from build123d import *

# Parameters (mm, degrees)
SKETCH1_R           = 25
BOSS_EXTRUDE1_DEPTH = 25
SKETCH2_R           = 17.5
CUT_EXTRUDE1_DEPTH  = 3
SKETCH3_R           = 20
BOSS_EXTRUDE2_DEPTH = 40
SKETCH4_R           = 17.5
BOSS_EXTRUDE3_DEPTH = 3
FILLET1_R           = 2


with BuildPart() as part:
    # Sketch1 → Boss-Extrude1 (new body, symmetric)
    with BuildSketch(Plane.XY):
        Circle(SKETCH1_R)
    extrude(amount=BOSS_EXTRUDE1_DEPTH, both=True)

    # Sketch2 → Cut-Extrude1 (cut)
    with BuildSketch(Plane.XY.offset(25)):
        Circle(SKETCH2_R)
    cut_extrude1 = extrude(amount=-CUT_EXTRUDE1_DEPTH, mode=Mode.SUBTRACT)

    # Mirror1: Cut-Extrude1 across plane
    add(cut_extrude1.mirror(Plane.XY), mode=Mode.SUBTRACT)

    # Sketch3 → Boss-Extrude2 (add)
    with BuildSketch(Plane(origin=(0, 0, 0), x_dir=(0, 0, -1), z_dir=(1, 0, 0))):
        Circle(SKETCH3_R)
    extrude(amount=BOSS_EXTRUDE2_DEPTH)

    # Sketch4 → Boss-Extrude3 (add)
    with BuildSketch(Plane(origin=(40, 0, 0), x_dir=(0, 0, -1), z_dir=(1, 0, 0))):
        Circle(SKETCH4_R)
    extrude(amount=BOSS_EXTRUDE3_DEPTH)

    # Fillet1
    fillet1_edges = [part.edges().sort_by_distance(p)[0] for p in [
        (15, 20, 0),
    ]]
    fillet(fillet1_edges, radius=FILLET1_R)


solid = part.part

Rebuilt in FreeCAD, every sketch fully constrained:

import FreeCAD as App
import Part
import Sketcher
from FreeCAD import Vector
Q = App.Units.Quantity


def edges_at(feature, points):
    """Names of the edges that pass closest to the given points."""
    edges = feature.Shape.Edges
    near = lambda p: min(range(len(edges)), key=lambda i: edges[i].distToShape(Part.Vertex(*p))[0])
    return sorted({f"Edge{near(p) + 1}" for p in points})

doc = App.newDocument("Part")
body = doc.addObject("PartDesign::Body", "Body")

sketch1 = body.newObject("Sketcher::SketchObject", "Sketch")
sketch1.AttachmentSupport = (doc.getObject("XY_Plane"), [""])
sketch1.MapMode = "FlatFace"
sketch1.addGeometry(Part.Circle(Vector(0, 0, 0), Vector(0, 0, 1), 25), False)
sketch1.addConstraint(Sketcher.Constraint("Coincident", 0, 3, -1, 1))
sketch1.addConstraint(Sketcher.Constraint("Diameter", 0, Q("50 mm")))
pad1 = body.newObject("PartDesign::Pad", "Pad")
pad1.Profile = sketch1
pad1.Length = 50
pad1.Midplane = True

sketch2 = body.newObject("Sketcher::SketchObject", "Sketch001")
sketch2.AttachmentSupport = (doc.getObject("XY_Plane"), [""])
sketch2.MapMode = "FlatFace"
sketch2.AttachmentOffset = App.Placement(Vector(0, 0, 25), App.Rotation())
sketch2.addGeometry(Part.Circle(Vector(0, 0, 0), Vector(0, 0, 1), 17.5), False)
sketch2.addConstraint(Sketcher.Constraint("Coincident", 0, 3, -1, 1))
sketch2.addConstraint(Sketcher.Constraint("Diameter", 0, Q("35 mm")))
pocket1 = body.newObject("PartDesign::Pocket", "Pocket")
pocket1.Profile = sketch2
pocket1.Length = 3
doc.recompute()

mirrored = body.newObject("PartDesign::Mirrored", "Mirrored")
mirrored.Originals = [pocket1]
mirrored.MirrorPlane = (doc.getObject("XY_Plane"), [""])
body.Tip = mirrored

sketch3 = body.newObject("Sketcher::SketchObject", "Sketch002")
sketch3.AttachmentSupport = (doc.getObject("YZ_Plane"), [""])
sketch3.MapMode = "FlatFace"
sketch3.addGeometry(Part.Circle(Vector(0, 0, 0), Vector(0, 0, 1), 20), False)
sketch3.addConstraint(Sketcher.Constraint("Coincident", 0, 3, -1, 1))
sketch3.addConstraint(Sketcher.Constraint("Diameter", 0, Q("40 mm")))
pad2 = body.newObject("PartDesign::Pad", "Pad001")
pad2.Profile = sketch3
pad2.Length = 40

sketch4 = body.newObject("Sketcher::SketchObject", "Sketch003")
sketch4.AttachmentSupport = (doc.getObject("YZ_Plane"), [""])
sketch4.MapMode = "FlatFace"
sketch4.AttachmentOffset = App.Placement(Vector(0, 0, 40), App.Rotation())
sketch4.addGeometry(Part.Circle(Vector(0, 0, 0), Vector(0, 0, 1), 17.5), False)
sketch4.addConstraint(Sketcher.Constraint("Coincident", 0, 3, -1, 1))
sketch4.addConstraint(Sketcher.Constraint("Diameter", 0, Q("35 mm")))
pad3 = body.newObject("PartDesign::Pad", "Pad002")
pad3.Profile = sketch4
pad3.Length = 3
doc.recompute()

fillet = body.newObject("PartDesign::Fillet", "Fillet")
fillet.Base = (pad3, edges_at(pad3, [(15, 20, 0)]))
fillet.Radius = 2

doc.recompute()
